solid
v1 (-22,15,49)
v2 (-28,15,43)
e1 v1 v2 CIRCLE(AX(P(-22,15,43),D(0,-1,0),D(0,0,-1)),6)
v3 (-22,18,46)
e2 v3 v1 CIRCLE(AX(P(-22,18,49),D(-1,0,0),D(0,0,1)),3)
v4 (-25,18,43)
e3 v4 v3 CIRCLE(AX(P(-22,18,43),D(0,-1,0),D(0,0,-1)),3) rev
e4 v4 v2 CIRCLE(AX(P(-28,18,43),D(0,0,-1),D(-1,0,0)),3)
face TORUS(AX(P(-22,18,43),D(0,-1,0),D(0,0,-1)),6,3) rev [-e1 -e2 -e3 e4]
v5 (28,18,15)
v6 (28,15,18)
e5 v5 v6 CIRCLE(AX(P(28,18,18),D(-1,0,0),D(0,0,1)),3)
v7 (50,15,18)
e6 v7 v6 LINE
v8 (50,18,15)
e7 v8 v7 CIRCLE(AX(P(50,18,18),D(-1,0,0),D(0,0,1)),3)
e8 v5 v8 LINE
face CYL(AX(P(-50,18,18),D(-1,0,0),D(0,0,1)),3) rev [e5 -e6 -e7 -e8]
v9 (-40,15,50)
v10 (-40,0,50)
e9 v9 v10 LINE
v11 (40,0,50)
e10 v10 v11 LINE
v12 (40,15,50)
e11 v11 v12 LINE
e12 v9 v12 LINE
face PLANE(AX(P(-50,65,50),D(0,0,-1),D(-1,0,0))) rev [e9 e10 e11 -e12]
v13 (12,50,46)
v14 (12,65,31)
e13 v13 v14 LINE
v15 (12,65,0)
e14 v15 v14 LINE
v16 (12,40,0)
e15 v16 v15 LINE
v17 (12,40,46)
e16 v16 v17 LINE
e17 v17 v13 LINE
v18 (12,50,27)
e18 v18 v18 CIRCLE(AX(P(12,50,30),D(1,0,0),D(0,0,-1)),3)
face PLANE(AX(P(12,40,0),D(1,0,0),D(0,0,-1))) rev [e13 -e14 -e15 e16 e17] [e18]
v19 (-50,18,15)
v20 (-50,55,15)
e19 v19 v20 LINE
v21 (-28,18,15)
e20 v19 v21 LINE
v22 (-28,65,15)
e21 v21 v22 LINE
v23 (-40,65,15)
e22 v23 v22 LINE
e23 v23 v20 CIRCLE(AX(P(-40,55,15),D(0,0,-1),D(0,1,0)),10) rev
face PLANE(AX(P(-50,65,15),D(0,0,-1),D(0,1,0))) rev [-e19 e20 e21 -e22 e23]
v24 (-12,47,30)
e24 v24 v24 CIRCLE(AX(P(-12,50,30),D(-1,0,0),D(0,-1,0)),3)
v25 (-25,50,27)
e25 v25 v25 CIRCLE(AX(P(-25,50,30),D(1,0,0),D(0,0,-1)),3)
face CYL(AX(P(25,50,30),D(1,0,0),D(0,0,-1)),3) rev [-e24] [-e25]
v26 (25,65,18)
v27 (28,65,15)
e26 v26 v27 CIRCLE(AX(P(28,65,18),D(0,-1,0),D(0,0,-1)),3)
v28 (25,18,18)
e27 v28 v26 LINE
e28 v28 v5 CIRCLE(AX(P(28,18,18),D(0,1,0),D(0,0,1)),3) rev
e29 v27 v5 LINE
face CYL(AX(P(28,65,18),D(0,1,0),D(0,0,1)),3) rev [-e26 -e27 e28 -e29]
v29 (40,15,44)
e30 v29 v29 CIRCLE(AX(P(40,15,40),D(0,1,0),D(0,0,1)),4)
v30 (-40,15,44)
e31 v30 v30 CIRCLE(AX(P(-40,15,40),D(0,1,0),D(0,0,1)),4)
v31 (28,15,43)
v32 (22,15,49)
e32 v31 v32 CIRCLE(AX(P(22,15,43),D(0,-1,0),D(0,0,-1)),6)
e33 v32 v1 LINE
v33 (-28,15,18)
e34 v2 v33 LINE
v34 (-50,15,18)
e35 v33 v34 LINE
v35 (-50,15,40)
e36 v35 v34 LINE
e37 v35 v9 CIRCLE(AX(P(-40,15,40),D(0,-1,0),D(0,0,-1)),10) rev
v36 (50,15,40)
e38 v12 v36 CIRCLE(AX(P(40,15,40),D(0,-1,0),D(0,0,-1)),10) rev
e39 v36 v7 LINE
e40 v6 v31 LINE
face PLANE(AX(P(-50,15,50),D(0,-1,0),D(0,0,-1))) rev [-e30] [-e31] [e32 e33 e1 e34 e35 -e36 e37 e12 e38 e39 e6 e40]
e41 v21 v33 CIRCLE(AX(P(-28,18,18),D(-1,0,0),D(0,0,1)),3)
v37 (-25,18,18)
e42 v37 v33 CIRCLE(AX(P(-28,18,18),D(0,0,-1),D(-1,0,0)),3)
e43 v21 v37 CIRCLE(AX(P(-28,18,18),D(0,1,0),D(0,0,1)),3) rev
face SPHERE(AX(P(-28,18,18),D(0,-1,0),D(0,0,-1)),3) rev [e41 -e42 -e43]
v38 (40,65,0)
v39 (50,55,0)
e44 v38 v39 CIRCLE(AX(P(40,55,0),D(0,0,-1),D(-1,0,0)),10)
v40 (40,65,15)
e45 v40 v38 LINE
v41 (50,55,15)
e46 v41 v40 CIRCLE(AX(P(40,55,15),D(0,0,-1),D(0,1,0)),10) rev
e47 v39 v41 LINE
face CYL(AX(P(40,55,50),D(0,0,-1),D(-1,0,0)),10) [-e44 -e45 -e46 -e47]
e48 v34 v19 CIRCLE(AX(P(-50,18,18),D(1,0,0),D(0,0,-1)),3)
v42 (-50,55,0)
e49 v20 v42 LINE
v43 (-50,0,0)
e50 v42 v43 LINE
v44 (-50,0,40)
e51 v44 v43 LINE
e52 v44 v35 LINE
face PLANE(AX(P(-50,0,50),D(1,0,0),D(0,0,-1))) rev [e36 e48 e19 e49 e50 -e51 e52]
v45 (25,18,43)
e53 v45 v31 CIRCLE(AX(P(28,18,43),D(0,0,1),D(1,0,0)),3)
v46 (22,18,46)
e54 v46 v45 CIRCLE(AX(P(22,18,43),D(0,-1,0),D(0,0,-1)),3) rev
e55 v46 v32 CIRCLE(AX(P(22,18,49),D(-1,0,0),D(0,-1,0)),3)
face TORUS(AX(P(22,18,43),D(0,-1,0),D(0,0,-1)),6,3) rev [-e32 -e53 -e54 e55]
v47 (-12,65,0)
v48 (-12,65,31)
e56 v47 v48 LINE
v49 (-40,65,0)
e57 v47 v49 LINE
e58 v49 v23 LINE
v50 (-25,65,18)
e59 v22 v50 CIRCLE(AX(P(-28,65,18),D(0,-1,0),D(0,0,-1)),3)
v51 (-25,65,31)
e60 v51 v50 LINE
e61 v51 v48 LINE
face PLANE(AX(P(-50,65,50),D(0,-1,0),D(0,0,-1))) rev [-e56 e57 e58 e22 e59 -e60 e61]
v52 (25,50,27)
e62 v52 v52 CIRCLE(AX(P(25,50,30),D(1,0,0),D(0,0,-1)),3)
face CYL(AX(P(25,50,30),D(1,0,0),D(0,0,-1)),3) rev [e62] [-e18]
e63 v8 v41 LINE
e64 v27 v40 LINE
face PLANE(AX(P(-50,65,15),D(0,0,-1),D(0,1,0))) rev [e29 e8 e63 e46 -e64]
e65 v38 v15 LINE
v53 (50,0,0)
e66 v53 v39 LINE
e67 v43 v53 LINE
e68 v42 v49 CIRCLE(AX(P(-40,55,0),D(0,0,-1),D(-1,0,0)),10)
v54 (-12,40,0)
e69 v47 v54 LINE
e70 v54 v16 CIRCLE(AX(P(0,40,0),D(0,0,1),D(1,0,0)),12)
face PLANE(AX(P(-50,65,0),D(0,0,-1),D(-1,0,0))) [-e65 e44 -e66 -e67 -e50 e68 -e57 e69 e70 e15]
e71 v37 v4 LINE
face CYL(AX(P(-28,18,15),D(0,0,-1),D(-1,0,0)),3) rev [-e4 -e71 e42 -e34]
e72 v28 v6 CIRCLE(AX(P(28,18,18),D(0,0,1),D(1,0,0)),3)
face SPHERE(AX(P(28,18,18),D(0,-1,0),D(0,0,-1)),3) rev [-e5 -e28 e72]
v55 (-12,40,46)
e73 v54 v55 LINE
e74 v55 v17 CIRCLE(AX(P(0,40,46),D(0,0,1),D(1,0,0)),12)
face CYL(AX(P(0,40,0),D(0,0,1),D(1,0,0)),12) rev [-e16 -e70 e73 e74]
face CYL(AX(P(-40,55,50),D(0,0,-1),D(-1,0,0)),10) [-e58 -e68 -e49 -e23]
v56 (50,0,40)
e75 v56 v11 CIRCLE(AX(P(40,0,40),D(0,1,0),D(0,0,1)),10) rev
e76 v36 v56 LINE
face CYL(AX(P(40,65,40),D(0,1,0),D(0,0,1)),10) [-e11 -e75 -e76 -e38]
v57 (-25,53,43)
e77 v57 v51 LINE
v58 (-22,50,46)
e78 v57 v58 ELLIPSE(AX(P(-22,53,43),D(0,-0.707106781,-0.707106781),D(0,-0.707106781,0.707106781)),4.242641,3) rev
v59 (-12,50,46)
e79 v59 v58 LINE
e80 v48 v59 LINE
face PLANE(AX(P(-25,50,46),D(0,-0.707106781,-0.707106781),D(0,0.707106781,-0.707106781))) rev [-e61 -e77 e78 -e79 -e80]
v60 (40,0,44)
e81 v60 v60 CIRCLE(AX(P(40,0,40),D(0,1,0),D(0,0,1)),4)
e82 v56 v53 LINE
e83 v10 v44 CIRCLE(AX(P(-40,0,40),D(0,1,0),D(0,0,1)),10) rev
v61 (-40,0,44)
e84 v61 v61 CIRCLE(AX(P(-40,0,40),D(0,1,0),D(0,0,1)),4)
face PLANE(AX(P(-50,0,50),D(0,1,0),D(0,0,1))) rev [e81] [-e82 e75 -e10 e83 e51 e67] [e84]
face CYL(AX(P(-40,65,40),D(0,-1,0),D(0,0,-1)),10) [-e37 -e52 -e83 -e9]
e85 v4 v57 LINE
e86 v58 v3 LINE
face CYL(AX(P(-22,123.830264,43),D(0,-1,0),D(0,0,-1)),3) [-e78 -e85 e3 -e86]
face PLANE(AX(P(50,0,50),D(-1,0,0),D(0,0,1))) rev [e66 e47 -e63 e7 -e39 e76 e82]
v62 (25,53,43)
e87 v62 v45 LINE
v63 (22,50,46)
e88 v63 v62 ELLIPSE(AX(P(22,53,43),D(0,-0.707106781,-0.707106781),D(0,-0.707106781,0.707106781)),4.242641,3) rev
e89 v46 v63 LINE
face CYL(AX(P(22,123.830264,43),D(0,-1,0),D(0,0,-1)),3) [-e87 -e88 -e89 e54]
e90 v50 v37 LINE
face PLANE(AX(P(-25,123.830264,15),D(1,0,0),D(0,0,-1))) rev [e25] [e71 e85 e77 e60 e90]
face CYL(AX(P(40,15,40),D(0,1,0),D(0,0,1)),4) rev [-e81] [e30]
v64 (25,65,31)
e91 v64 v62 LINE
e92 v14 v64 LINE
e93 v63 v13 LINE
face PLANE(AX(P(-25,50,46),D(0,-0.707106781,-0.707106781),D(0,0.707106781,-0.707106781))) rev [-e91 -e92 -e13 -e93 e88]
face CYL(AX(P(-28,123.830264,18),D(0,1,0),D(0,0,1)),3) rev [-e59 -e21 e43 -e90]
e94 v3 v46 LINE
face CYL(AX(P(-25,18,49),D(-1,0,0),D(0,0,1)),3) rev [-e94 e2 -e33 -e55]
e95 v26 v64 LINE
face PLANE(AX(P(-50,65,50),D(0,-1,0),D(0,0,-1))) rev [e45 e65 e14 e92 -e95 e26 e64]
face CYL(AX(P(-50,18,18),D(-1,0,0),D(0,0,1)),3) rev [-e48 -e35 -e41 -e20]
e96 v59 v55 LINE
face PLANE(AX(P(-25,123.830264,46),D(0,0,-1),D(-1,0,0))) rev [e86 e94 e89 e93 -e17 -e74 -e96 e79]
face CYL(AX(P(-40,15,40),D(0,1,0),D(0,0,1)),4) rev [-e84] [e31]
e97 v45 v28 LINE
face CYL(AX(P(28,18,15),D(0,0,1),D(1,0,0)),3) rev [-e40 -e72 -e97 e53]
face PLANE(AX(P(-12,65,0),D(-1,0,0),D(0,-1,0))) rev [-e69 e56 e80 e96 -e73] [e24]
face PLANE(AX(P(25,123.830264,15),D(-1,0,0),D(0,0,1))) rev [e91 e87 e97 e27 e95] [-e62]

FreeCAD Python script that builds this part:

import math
import FreeCAD as App
import Part
import Sketcher

V = App.Vector


def edges_at(feature, points):
    """Names of the edges that pass closest to the given points."""
    edges = feature.Shape.Edges
    near = lambda p: min(range(len(edges)), key=lambda i: edges[i].distToShape(Part.Vertex(*p))[0])
    return sorted({f"Edge{near(p) + 1}" for p in points})


def add_polygon(sketch, points):
    """Adds a closed chain of lines whose ends are joined by coincident constraints."""
    first, n = sketch.GeometryCount, len(points)
    for a, b in zip(points, points[1:] + points[:1]):
        sketch.addGeometry(Part.LineSegment(App.Vector(*a, 0), App.Vector(*b, 0)), False)
    for i in range(n):
        sketch.addConstraint(Sketcher.Constraint("Coincident", first + i, 2, first + (i + 1) % n, 1))

doc = App.newDocument("Part")
body = doc.addObject("PartDesign::Body", "Body")

# Sketch on XY plane
sketch1 = body.newObject("Sketcher::SketchObject", "Sketch")
sketch1.AttachmentSupport = (doc.getObject("XY_Plane"), [""])
sketch1.MapMode = "FlatFace"
add_polygon(sketch1, [(-50, 65), (-50, 0), (50, 0), (50, 65)])  # lines 0-3
sketch1.addConstraint([
    Sketcher.Constraint("Vertical", 0),
    Sketcher.Constraint("Horizontal", 1),
    Sketcher.Constraint("Vertical", 2),
    Sketcher.Constraint("Horizontal", 3),
    Sketcher.Constraint("Symmetric", 0, 2, 1, 2, -1, 1),
    Sketcher.Constraint("DistanceX", 1, 1, 1, 2, 100.0),
    Sketcher.Constraint("DistanceY", 0, 2, 0, 1, 65.0),
])
pad1 = body.newObject("PartDesign::Pad", "Pad")
pad1.Profile = sketch1
pad1.Length = 50

# Sketch on YZ plane
sketch2 = body.newObject("Sketcher::SketchObject", "Sketch001")
sketch2.AttachmentSupport = (doc.getObject("YZ_Plane"), [""])
sketch2.MapMode = "FlatFace"
sketch2.AttachmentOffset = App.Placement(V(0, 0, 50), App.Rotation())
add_polygon(sketch2, [(65, 50), (15, 50), (15, 15), (65, 15)])  # lines 0-3
sketch2.addConstraint([
    Sketcher.Constraint("Horizontal", 0),
    Sketcher.Constraint("Vertical", 1),
    Sketcher.Constraint("Horizontal", 2),
    Sketcher.Constraint("Vertical", 3),
    Sketcher.Constraint("DistanceX", 0, 2, 0, 1, 50.0),
    Sketcher.Constraint("DistanceY", 1, 2, 1, 1, 35.0),
    Sketcher.Constraint("DistanceX", -1, 1, 0, 2, 15.0),
    Sketcher.Constraint("DistanceY", -1, 1, 0, 2, 50.0),
])
pocket1 = body.newObject("PartDesign::Pocket", "Pocket")
pocket1.Profile = sketch2
pocket1.Type = "ThroughAll"

# Sketch on XZ plane
sketch3 = body.newObject("Sketcher::SketchObject", "Sketch002")
sketch3.AttachmentSupport = (doc.getObject("XZ_Plane"), [""])
sketch3.MapMode = "FlatFace"
sketch3.AttachmentOffset = App.Placement(V(0, 0, -15), App.Rotation())
add_polygon(sketch3, [(25, 46), (25, 15), (-25, 15), (-25, 46)])  # lines 0-3
sketch3.addConstraint([
    Sketcher.Constraint("Vertical", 0),
    Sketcher.Constraint("Horizontal", 1),
    Sketcher.Constraint("Vertical", 2),
    Sketcher.Constraint("Horizontal", 3),
    Sketcher.Constraint("DistanceX", 1, 2, 1, 1, 50.0),
    Sketcher.Constraint("DistanceY", 0, 2, 0, 1, 31.0),
    Sketcher.Constraint("DistanceX", -1, 1, 0, 2, 25.0),
    Sketcher.Constraint("DistanceY", -1, 1, 0, 2, 15.0),
])
pad2 = body.newObject("PartDesign::Pad", "Pad001")
pad2.Profile = sketch3
pad2.Length = 50
pad2.Reversed = True

# Sketch on XY plane
sketch4 = body.newObject("Sketcher::SketchObject", "Sketch003")
sketch4.AttachmentSupport = (doc.getObject("XY_Plane"), [""])
sketch4.MapMode = "FlatFace"
sketch4.AttachmentOffset = App.Placement(V(0, 0, 46), App.Rotation())
sketch4.addGeometry([
    Part.LineSegment(V(-12, 65, 0), V(-12, 40, 0)),
    Part.ArcOfCircle(Part.Circle(V(0, 40, 0), V(0, 0, 1), 12), math.radians(180), math.radians(360)),
    Part.LineSegment(V(12, 40, 0), V(12, 65, 0)),
    Part.LineSegment(V(12, 65, 0), V(-12, 65, 0)),
], False)
sketch4.addConstraint([
    Sketcher.Constraint("Tangent", 0, 2, 1, 1),
    Sketcher.Constraint("Tangent", 1, 2, 2, 1),
    Sketcher.Constraint("Coincident", 2, 2, 3, 1),
    Sketcher.Constraint("Coincident", 3, 2, 0, 1),
    Sketcher.Constraint("Vertical", 0),
    Sketcher.Constraint("Vertical", 2),
    Sketcher.Constraint("Horizontal", 3),
    Sketcher.Constraint("PointOnObject", 1, 3, -2),
    Sketcher.Constraint("Radius", 1, 12.0),
    Sketcher.Constraint("DistanceY", 0, 2, 0, 1, 25.0),
    Sketcher.Constraint("DistanceY", -1, 1, 1, 3, 40.0),
])
pocket2 = body.newObject("PartDesign::Pocket", "Pocket001")
pocket2.Profile = sketch4
pocket2.Type = "ThroughAll"
doc.recompute()

chamfer = body.newObject("PartDesign::Chamfer", "Chamfer")
chamfer.Base = (pocket2, edges_at(pocket2, [(18.5, 65, 46), (-18.5, 65, 46)]))
chamfer.Size = 15
doc.recompute()

fillet = body.newObject("PartDesign::Fillet", "Fillet")
fillet.Base = (chamfer, edges_at(chamfer, [
    (50, 7.5, 50),
    (-50, 7.5, 50),
    (-50, 65, 7.5),
    (50, 65, 7.5),
]))
fillet.Radius = 10
doc.recompute()

fillet2 = body.newObject("PartDesign::Fillet", "Fillet001")
fillet2.Base = (fillet, edges_at(fillet, [(25, 40, 15), (-25, 40, 15)]))
fillet2.Radius = 3
doc.recompute()

fillet3 = body.newObject("PartDesign::Fillet", "Fillet002")
fillet3.Base = (fillet2, edges_at(fillet2, [(-25, 32.5, 46), (25, 32.5, 46)]))
fillet3.Radius = 3
doc.recompute()

fillet4 = body.newObject("PartDesign::Fillet", "Fillet003")
fillet4.Base = (fillet3, edges_at(fillet3, [
    (0, 15, 46),
    (25, 15, 30.5),
    (-24.121, 15, 45.121),
    (24.121, 15, 45.121),
    (-39, 15, 15),
    (39, 15, 15),
    (-25, 15, 30.5),
    (-25.879, 15, 15.879),
    (25.879, 15, 15.879),
]))
fillet4.Radius = 3

# Sketch on XZ plane
sketch5 = body.newObject("Sketcher::SketchObject", "Sketch004")
sketch5.AttachmentSupport = (doc.getObject("XZ_Plane"), [""])
sketch5.MapMode = "FlatFace"
sketch5.AttachmentOffset = App.Placement(V(0, 0, -15), App.Rotation())
sketch5.addGeometry([
    Part.Circle(V(40, 40, 0), V(0, 0, 1), 4),
    Part.Circle(V(-40, 40, 0), V(0, 0, 1), 4),
], False)
sketch5.addConstraint([
    Sketcher.Constraint("Equal", 0, 1),
    Sketcher.Constraint("Symmetric", 0, 3, 1, 3, -2),
    Sketcher.Constraint("Diameter", 0, 8.0),
    Sketcher.Constraint("DistanceX", -1, 1, 0, 3, 40.0),
    Sketcher.Constraint("DistanceY", -1, 1, 0, 3, 40.0),
])
doc.recompute()
hole = body.newObject("PartDesign::Hole", "Hole")
hole.Profile = sketch5
hole.ThreadType = "None"
hole.Diameter = 8
hole.DepthType = "ThroughAll"
hole.Reversed = True

# Sketch on YZ plane
sketch6 = body.newObject("Sketcher::SketchObject", "Sketch005")
sketch6.AttachmentSupport = (doc.getObject("YZ_Plane"), [""])
sketch6.MapMode = "FlatFace"
sketch6.AttachmentOffset = App.Placement(V(0, 0, 25), App.Rotation())
sketch6.addGeometry(Part.Circle(V(50, 30, 0), V(0, 0, 1), 3), False)
sketch6.addConstraint([
    Sketcher.Constraint("Diameter", 0, 6.0),
    Sketcher.Constraint("DistanceX", -1, 1, 0, 3, 50.0),
    Sketcher.Constraint("DistanceY", -1, 1, 0, 3, 30.0),
])
doc.recompute()
hole2 = body.newObject("PartDesign::Hole", "Hole001")
hole2.Profile = sketch6
hole2.ThreadType = "None"
hole2.Diameter = 6
hole2.DepthType = "ThroughAll"

doc.recompute()
